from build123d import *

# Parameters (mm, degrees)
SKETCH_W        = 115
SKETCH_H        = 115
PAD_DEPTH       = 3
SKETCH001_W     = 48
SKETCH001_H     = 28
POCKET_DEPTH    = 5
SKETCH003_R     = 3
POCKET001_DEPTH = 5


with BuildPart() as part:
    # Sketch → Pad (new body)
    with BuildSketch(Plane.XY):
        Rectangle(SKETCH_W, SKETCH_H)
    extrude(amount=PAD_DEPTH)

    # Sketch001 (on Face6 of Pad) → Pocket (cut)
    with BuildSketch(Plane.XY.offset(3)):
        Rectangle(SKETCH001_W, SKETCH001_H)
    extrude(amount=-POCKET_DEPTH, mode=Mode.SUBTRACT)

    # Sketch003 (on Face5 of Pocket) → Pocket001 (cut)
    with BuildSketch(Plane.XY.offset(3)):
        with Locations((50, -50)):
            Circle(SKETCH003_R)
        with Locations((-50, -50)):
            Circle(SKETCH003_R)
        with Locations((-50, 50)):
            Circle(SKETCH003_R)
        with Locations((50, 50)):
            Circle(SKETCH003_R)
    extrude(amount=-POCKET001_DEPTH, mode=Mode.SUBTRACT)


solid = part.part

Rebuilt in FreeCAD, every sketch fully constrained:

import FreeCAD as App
import Part
import Sketcher
Q = App.Units.Quantity


def add_polygon(sketch, points):
    """Adds a closed chain of lines whose ends are joined by coincident constraints."""
    first, n = sketch.GeometryCount, len(points)
    for a, b in zip(points, points[1:] + points[:1]):
        sketch.addGeometry(Part.LineSegment(App.Vector(*a, 0), App.Vector(*b, 0)), False)
    for i in range(n):
        sketch.addConstraint(Sketcher.Constraint("Coincident", first + i, 2, first + (i + 1) % n, 1))

doc = App.newDocument("Part")
body = doc.addObject("PartDesign::Body", "Body")

sketch1 = body.newObject("Sketcher::SketchObject", "Sketch")
sketch1.AttachmentSupport = (doc.getObject("XY_Plane"), [""])
sketch1.MapMode = "FlatFace"
add_polygon(sketch1, [(-58, 58), (-58, -58), (58, -58), (58, 58)])
sketch1.addConstraint([
    Sketcher.Constraint("Vertical", 0),
    Sketcher.Constraint("Horizontal", 1),
    Sketcher.Constraint("Vertical", 2),
    Sketcher.Constraint("Horizontal", 3),
    Sketcher.Constraint("Symmetric", 0, 2, 2, 2, -1, 1),
    Sketcher.Constraint("Equal", 3, 0),
    Sketcher.Constraint("DistanceX", 1, 1, 1, 2, Q("115 mm")),
])
pad1 = body.newObject("PartDesign::Pad", "Pad")
pad1.Profile = sketch1
pad1.Length = 3

sketch2 = body.newObject("Sketcher::SketchObject", "Sketch001")
sketch2.AttachmentSupport = (doc.getObject("XY_Plane"), [""])
sketch2.MapMode = "FlatFace"
sketch2.AttachmentOffset = App.Placement(App.Vector(0, 0, 3), App.Rotation())
add_polygon(sketch2, [(-24, 14), (-24, -14), (24, -14), (24, 14)])
sketch2.addConstraint([
    Sketcher.Constraint("Vertical", 0),
    Sketcher.Constraint("Horizontal", 1),
    Sketcher.Constraint("Vertical", 2),
    Sketcher.Constraint("Horizontal", 3),
    Sketcher.Constraint("Symmetric", 0, 2, 2, 2, -1, 1),
    Sketcher.Constraint("DistanceX", 1, 1, 1, 2, Q("48 mm")),
    Sketcher.Constraint("DistanceY", 0, 2, 0, 1, Q("28 mm")),
])
pocket1 = body.newObject("PartDesign::Pocket", "Pocket")
pocket1.Profile = sketch2
pocket1.Length = 5

sketch3 = body.newObject("Sketcher::SketchObject", "Sketch002")
sketch3.AttachmentSupport = (doc.getObject("XY_Plane"), [""])
sketch3.MapMode = "FlatFace"
sketch3.AttachmentOffset = App.Placement(App.Vector(0, 0, 3), App.Rotation())
sketch3.addGeometry([
    Part.Circle(App.Vector(50, -50, 0), App.Vector(0, 0, 1), 3),
    Part.Circle(App.Vector(-50, -50, 0), App.Vector(0, 0, 1), 3),
    Part.Circle(App.Vector(-50, 50, 0), App.Vector(0, 0, 1), 3),
    Part.Circle(App.Vector(50, 50, 0), App.Vector(0, 0, 1), 3),
], False)
sketch3.addConstraint([
    Sketcher.Constraint("Equal", 0, 1),
    Sketcher.Constraint("Equal", 1, 2),
    Sketcher.Constraint("Equal", 2, 3),
    Sketcher.Constraint("Symmetric", 0, 3, 2, 3, -1, 1),
    Sketcher.Constraint("Symmetric", 1, 3, 3, 3, -1, 1),
    Sketcher.Constraint("Symmetric", 0, 3, 1, 3, -2),
    Sketcher.Constraint("Diameter", 0, Q("6 mm")),
    Sketcher.Constraint("DistanceX", -1, 1, 0, 3, Q("50 mm")),
    Sketcher.Constraint("DistanceY", 0, 3, -1, 1, Q("50 mm")),
])
pocket2 = body.newObject("PartDesign::Pocket", "Pocket001")
pocket2.Profile = sketch3
pocket2.Length = 5

doc.recompute()
